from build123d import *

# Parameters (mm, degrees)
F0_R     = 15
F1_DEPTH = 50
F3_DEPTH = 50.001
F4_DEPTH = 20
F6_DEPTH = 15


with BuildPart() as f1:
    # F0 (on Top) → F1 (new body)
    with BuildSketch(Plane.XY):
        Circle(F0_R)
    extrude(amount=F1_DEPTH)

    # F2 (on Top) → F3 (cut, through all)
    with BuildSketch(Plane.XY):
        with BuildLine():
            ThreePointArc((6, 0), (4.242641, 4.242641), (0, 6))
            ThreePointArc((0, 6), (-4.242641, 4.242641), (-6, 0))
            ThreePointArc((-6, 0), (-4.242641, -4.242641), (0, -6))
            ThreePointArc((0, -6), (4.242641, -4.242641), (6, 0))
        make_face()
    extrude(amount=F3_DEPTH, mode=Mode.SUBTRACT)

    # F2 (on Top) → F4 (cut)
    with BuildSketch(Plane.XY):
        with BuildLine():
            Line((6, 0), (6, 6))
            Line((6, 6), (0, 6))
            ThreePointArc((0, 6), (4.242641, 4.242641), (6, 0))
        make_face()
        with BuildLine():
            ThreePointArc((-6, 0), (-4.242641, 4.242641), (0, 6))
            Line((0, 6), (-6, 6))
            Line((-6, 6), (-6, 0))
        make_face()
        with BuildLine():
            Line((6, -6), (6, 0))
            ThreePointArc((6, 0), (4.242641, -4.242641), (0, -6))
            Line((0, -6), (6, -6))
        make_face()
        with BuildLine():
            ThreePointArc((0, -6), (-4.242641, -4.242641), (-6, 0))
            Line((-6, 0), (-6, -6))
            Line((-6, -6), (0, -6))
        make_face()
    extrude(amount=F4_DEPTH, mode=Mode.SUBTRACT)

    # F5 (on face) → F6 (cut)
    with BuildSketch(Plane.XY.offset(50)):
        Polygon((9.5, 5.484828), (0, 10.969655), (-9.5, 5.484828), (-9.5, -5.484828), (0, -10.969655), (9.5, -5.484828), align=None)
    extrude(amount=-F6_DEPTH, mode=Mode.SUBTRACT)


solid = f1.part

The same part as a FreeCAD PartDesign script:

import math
import FreeCAD as App
import Part
import Sketcher
Q = App.Units.Quantity


def add_polygon(sketch, points):
    """Adds a closed chain of lines whose ends are joined by coincident constraints."""
    first, n = sketch.GeometryCount, len(points)
    for a, b in zip(points, points[1:] + points[:1]):
        sketch.addGeometry(Part.LineSegment(App.Vector(*a, 0), App.Vector(*b, 0)), False)
    for i in range(n):
        sketch.addConstraint(Sketcher.Constraint("Coincident", first + i, 2, first + (i + 1) % n, 1))

doc = App.newDocument("Part")
body = doc.addObject("PartDesign::Body", "Body")

# Sketch on XY plane
sketch1 = doc.addObject("Sketcher::SketchObject", "Sketch")
body.addObject(sketch1)
sketch1.AttachmentSupport = (doc.XY_Plane, [""])
sketch1.MapMode = "FlatFace"
sketch1.addGeometry(Part.Circle(App.Vector(0, 0, 0), App.Vector(0, 0, 1), 15), False)
sketch1.addConstraint(Sketcher.Constraint("Coincident", 0, 3, -1, 1))
sketch1.addConstraint(Sketcher.Constraint("Diameter", 0, 30.0))
pad1 = doc.addObject("PartDesign::Pad", "Pad")
body.addObject(pad1)
pad1.Profile = sketch1
pad1.Length = 50

# Sketch on XY plane
sketch2 = doc.addObject("Sketcher::SketchObject", "Sketch001")
body.addObject(sketch2)
sketch2.AttachmentSupport = (doc.XY_Plane, [""])
sketch2.MapMode = "FlatFace"
sketch2.addGeometry(Part.ArcOfCircle(Part.Circle(App.Vector(0, 0, 0), App.Vector(0, 0, 1), 6), math.radians(0), math.radians(90)), False)
sketch2.addGeometry(Part.ArcOfCircle(Part.Circle(App.Vector(0, 0, 0), App.Vector(0, 0, 1), 6), math.radians(90), math.radians(180)), False)
sketch2.addGeometry(Part.ArcOfCircle(Part.Circle(App.Vector(0, 0, 0), App.Vector(0, 0, 1), 6), math.radians(180), math.radians(270)), False)
sketch2.addGeometry(Part.ArcOfCircle(Part.Circle(App.Vector(0, 0, 0), App.Vector(0, 0, 1), 6), math.radians(-90), math.radians(0)), False)
sketch2.addConstraint(Sketcher.Constraint("Tangent", 0, 2, 1, 1))
sketch2.addConstraint(Sketcher.Constraint("Tangent", 1, 2, 2, 1))
sketch2.addConstraint(Sketcher.Constraint("Tangent", 2, 2, 3, 1))
sketch2.addConstraint(Sketcher.Constraint("Tangent", 3, 2, 0, 1))
sketch2.addConstraint(Sketcher.Constraint("Coincident", 0, 3, -1, 1))
sketch2.addConstraint(Sketcher.Constraint("Equal", 0, 1))
sketch2.addConstraint(Sketcher.Constraint("PointOnObject", 0, 2, -2))
sketch2.addConstraint(Sketcher.Constraint("PointOnObject", 1, 2, -1))
sketch2.addConstraint(Sketcher.Constraint("PointOnObject", 2, 2, -2))
sketch2.addConstraint(Sketcher.Constraint("PointOnObject", 3, 2, -1))
sketch2.addConstraint(Sketcher.Constraint("Radius", 0, 5.999999))
pocket1 = doc.addObject("PartDesign::Pocket", "Pocket")
body.addObject(pocket1)
pocket1.Profile = sketch2
pocket1.Type = "ThroughAll"
pocket1.Reversed = True

# Sketch on XY plane
sketch3 = doc.addObject("Sketcher::SketchObject", "Sketch002")
body.addObject(sketch3)
sketch3.AttachmentSupport = (doc.XY_Plane, [""])
sketch3.MapMode = "FlatFace"
sketch3.addGeometry(Part.LineSegment(App.Vector(6, 0, 0), App.Vector(6, 6, 0)), False)
sketch3.addGeometry(Part.LineSegment(App.Vector(6, 6, 0), App.Vector(0, 6, 0)), False)
sketch3.addGeometry(Part.ArcOfCircle(Part.Circle(App.Vector(0, 0, 0), App.Vector(0, 0, 1), 6), math.radians(0), math.radians(90)), False)
sketch3.addGeometry(Part.ArcOfCircle(Part.Circle(App.Vector(0, 0, 0), App.Vector(0, 0, 1), 6), math.radians(90), math.radians(180)), False)
sketch3.addGeometry(Part.LineSegment(App.Vector(0, 6, 0), App.Vector(-6, 6, 0)), False)
sketch3.addGeometry(Part.LineSegment(App.Vector(-6, 6, 0), App.Vector(-6, 0, 0)), False)
sketch3.addGeometry(Part.LineSegment(App.Vector(6, -6, 0), App.Vector(6, 0, 0)), False)
sketch3.addGeometry(Part.ArcOfCircle(Part.Circle(App.Vector(0, 0, 0), App.Vector(0, 0, 1), 6), math.radians(-90), math.radians(0)), False)
sketch3.addGeometry(Part.LineSegment(App.Vector(0, -6, 0), App.Vector(6, -6, 0)), False)
sketch3.addGeometry(Part.ArcOfCircle(Part.Circle(App.Vector(0, 0, 0), App.Vector(0, 0, 1), 6), math.radians(180), math.radians(270)), False)
sketch3.addGeometry(Part.LineSegment(App.Vector(-6, 0, 0), App.Vector(-6, -6, 0)), False)
sketch3.addGeometry(Part.LineSegment(App.Vector(-6, -6, 0), App.Vector(0, -6, 0)), False)
sketch3.addConstraint(Sketcher.Constraint("Coincident", 0, 2, 1, 1))
sketch3.addConstraint(Sketcher.Constraint("Tangent", 1, 2, 2, 2))
sketch3.addConstraint(Sketcher.Constraint("Tangent", 2, 1, 0, 1))
sketch3.addConstraint(Sketcher.Constraint("Tangent", 3, 1, 4, 1))
sketch3.addConstraint(Sketcher.Constraint("Coincident", 4, 2, 5, 1))
sketch3.addConstraint(Sketcher.Constraint("Tangent", 5, 2, 3, 2))
sketch3.addConstraint(Sketcher.Constraint("Tangent", 6, 2, 7, 2))
sketch3.addConstraint(Sketcher.Constraint("Tangent", 7, 1, 8, 1))
sketch3.addConstraint(Sketcher.Constraint("Coincident", 8, 2, 6, 1))
sketch3.addConstraint(Sketcher.Constraint("Tangent", 9, 1, 10, 1))
sketch3.addConstraint(Sketcher.Constraint("Coincident", 10, 2, 11, 1))
sketch3.addConstraint(Sketcher.Constraint("Tangent", 11, 2, 9, 2))
sketch3.addConstraint(Sketcher.Constraint("Vertical", 0))
sketch3.addConstraint(Sketcher.Constraint("Horizontal", 1))
sketch3.addConstraint(Sketcher.Constraint("Horizontal", 4))
sketch3.addConstraint(Sketcher.Constraint("Vertical", 5))
sketch3.addConstraint(Sketcher.Constraint("Vertical", 6))
sketch3.addConstraint(Sketcher.Constraint("Horizontal", 8))
sketch3.addConstraint(Sketcher.Constraint("Vertical", 10))
sketch3.addConstraint(Sketcher.Constraint("Horizontal", 11))
sketch3.addConstraint(Sketcher.Constraint("Coincident", 2, 3, -1, 1))
sketch3.addConstraint(Sketcher.Constraint("Coincident", 3, 3, -1, 1))
sketch3.addConstraint(Sketcher.Constraint("Coincident", 7, 3, -1, 1))
sketch3.addConstraint(Sketcher.Constraint("Coincident", 9, 3, -1, 1))
sketch3.addConstraint(Sketcher.Constraint("Equal", 2, 3))
sketch3.addConstraint(Sketcher.Constraint("Equal", 3, 7))
sketch3.addConstraint(Sketcher.Constraint("Equal", 7, 9))
sketch3.addConstraint(Sketcher.Constraint("Radius", 2, 5.999999))
pocket2 = doc.addObject("PartDesign::Pocket", "Pocket001")
body.addObject(pocket2)
pocket2.Profile = sketch3
pocket2.Length = 20
pocket2.Reversed = True

# Sketch on XY plane
sketch4 = doc.addObject("Sketcher::SketchObject", "Sketch003")
body.addObject(sketch4)
sketch4.AttachmentSupport = (doc.XY_Plane, [""])
sketch4.MapMode = "FlatFace"
sketch4.AttachmentOffset = App.Placement(App.Vector(0, 0, 50), App.Rotation())
add_polygon(sketch4, [(10, 5), (0, 11), (-10, 5), (-10, -5), (0, -11), (10, -5)])  # lines 0-5
sketch4.addConstraint(Sketcher.Constraint("Vertical", 2))
sketch4.addConstraint(Sketcher.Constraint("Vertical", 5))
sketch4.addConstraint(Sketcher.Constraint("Symmetric", 0, 2, 3, 2, -1, 1))
sketch4.addConstraint(Sketcher.Constraint("Symmetric", 1, 2, 4, 2, -1, 1))
sketch4.addConstraint(Sketcher.Constraint("PointOnObject", 0, 2, -2))
sketch4.addConstraint(Sketcher.Constraint("Parallel", 0, 3))
sketch4.addConstraint(Sketcher.Constraint("Horizontal", 2, 2, 4, 2))
sketch4.addConstraint(Sketcher.Constraint("Angle", 0, Q("150.000003 deg")))
sketch4.addConstraint(Sketcher.Constraint("DistanceX", 2, 2, 4, 2, 19.0))
sketch4.addConstraint(Sketcher.Constraint("DistanceY", 2, 2, 2, 1, 10.969656))
pocket3 = doc.addObject("PartDesign::Pocket", "Pocket002")
body.addObject(pocket3)
pocket3.Profile = sketch4
pocket3.Length = 15

doc.recompute()
